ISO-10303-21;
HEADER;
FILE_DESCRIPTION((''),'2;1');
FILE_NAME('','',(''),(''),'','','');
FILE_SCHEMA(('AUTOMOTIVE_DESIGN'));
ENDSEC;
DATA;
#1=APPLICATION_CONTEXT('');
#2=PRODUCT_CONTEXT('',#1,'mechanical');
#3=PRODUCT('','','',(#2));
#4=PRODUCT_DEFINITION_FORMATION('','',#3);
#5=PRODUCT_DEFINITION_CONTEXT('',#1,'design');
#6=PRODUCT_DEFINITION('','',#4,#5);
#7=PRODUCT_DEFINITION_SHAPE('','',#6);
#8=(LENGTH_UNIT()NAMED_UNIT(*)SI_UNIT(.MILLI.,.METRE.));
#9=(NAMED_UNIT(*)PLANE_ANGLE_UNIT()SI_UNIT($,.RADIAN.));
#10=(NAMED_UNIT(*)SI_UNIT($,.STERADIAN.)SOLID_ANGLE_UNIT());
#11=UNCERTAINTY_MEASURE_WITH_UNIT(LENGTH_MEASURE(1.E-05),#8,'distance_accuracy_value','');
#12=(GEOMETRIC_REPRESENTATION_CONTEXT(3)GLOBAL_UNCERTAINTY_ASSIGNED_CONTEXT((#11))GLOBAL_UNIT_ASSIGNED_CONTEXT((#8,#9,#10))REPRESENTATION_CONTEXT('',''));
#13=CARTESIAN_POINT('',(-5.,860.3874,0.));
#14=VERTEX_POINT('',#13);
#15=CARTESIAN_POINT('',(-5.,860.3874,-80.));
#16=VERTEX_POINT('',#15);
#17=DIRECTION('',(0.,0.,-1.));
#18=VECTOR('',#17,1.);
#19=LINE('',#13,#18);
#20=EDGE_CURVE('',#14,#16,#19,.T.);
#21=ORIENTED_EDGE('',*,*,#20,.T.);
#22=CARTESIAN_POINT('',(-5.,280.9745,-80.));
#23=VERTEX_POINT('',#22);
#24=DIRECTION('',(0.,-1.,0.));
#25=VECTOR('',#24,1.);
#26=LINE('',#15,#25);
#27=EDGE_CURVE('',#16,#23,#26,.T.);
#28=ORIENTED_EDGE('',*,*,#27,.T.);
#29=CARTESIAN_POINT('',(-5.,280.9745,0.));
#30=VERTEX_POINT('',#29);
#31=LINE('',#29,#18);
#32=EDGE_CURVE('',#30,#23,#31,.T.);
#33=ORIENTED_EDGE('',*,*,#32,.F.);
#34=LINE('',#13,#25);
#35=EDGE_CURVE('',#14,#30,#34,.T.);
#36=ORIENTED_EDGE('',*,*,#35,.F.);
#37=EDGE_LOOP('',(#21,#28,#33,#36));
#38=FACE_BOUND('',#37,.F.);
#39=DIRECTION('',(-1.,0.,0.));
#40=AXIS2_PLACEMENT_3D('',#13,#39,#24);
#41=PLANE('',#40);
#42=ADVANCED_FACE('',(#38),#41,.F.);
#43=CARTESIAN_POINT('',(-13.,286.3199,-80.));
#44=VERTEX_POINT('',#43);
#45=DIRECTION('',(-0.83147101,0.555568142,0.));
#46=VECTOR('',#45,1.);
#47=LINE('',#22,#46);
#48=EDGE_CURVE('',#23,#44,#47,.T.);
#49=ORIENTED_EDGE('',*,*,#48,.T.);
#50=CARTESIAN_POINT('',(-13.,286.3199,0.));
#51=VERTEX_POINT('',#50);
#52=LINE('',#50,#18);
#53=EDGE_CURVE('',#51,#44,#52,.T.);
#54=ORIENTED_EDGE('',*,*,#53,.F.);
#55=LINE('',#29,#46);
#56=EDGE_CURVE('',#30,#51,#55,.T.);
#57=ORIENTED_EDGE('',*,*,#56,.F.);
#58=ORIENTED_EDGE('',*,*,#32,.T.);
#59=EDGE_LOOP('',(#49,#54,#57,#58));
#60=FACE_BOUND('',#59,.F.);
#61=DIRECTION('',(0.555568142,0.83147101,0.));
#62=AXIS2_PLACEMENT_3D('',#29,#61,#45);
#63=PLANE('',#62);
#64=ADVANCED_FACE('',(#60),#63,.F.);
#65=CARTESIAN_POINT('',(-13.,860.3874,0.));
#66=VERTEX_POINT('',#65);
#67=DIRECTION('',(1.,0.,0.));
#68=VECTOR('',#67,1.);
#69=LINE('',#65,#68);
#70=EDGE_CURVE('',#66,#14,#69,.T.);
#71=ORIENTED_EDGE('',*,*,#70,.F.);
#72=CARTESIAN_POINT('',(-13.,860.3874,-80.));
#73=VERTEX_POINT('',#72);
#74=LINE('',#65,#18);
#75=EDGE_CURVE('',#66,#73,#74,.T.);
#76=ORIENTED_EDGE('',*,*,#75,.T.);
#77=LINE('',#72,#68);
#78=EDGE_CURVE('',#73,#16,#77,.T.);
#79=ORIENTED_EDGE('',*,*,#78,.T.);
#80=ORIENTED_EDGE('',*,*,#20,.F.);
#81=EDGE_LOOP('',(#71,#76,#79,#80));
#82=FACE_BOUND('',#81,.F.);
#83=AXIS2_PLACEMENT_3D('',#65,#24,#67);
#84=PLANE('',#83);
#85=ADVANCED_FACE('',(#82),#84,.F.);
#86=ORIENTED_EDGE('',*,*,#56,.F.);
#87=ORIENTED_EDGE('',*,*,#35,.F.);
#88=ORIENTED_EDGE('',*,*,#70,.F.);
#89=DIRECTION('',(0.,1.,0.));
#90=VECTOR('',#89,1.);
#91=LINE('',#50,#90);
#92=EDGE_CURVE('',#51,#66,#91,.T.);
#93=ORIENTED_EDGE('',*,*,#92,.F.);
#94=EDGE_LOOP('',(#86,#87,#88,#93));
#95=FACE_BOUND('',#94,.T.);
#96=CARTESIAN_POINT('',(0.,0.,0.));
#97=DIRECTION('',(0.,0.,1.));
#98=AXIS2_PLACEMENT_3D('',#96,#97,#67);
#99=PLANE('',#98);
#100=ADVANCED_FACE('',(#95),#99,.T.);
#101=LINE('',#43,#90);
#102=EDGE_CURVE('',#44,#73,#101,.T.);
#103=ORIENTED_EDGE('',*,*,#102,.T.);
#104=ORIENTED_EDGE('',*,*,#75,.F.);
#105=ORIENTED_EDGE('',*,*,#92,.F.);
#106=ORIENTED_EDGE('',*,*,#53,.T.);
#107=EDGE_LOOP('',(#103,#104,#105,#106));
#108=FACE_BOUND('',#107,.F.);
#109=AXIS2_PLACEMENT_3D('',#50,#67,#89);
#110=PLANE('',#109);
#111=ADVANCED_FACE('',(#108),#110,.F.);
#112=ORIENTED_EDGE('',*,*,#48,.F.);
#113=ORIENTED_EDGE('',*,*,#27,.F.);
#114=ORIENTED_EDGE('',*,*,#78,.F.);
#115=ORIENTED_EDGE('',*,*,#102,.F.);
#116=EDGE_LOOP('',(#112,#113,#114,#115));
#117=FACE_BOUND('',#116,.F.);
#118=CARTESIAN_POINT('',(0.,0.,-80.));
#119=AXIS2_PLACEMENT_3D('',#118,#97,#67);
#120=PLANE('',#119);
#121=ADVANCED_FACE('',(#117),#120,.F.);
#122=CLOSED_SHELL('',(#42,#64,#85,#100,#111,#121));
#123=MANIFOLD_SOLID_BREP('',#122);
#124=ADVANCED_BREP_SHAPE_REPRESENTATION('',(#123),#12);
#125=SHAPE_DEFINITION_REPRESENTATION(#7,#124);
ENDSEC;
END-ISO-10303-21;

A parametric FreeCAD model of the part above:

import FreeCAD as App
import Part
import Sketcher
Q = App.Units.Quantity


def add_polygon(sketch, points):
    """Adds a closed chain of lines whose ends are joined by coincident constraints."""
    first, n = sketch.GeometryCount, len(points)
    for a, b in zip(points, points[1:] + points[:1]):
        sketch.addGeometry(Part.LineSegment(App.Vector(*a, 0), App.Vector(*b, 0)), False)
    for i in range(n):
        sketch.addConstraint(Sketcher.Constraint("Coincident", first + i, 2, first + (i + 1) % n, 1))

doc = App.newDocument("Part")
body = doc.addObject("PartDesign::Body", "Body")

sketch1 = doc.addObject("Sketcher::SketchObject", "Sketch")
body.addObject(sketch1)
sketch1.AttachmentSupport = (doc.XY_Plane, [""])
sketch1.MapMode = "FlatFace"
add_polygon(sketch1, [(-5, 860), (-13, 860), (-13, 286), (-5, 281)])
sketch1.addConstraint([
    Sketcher.Constraint("Horizontal", 0),
    Sketcher.Constraint("Vertical", 1),
    Sketcher.Constraint("Vertical", 3),
    Sketcher.Constraint("DistanceX", 0, 2, 0, 1, Q("8 mm")),
    Sketcher.Constraint("DistanceX", 2, 2, -1, 1, Q("5 mm")),
    Sketcher.Constraint("Angle", 2, Q("-33.7499 deg")),
    Sketcher.Constraint("DistanceY", 3, 1, 3, 2, Q("579.413 mm")),
    Sketcher.Constraint("DistanceY", -1, 1, 1, 2, Q("286.32 mm")),
])
pad1 = doc.addObject("PartDesign::Pad", "Pad")
body.addObject(pad1)
pad1.Profile = sketch1
pad1.Length = 80
pad1.Reversed = True

doc.recompute()
